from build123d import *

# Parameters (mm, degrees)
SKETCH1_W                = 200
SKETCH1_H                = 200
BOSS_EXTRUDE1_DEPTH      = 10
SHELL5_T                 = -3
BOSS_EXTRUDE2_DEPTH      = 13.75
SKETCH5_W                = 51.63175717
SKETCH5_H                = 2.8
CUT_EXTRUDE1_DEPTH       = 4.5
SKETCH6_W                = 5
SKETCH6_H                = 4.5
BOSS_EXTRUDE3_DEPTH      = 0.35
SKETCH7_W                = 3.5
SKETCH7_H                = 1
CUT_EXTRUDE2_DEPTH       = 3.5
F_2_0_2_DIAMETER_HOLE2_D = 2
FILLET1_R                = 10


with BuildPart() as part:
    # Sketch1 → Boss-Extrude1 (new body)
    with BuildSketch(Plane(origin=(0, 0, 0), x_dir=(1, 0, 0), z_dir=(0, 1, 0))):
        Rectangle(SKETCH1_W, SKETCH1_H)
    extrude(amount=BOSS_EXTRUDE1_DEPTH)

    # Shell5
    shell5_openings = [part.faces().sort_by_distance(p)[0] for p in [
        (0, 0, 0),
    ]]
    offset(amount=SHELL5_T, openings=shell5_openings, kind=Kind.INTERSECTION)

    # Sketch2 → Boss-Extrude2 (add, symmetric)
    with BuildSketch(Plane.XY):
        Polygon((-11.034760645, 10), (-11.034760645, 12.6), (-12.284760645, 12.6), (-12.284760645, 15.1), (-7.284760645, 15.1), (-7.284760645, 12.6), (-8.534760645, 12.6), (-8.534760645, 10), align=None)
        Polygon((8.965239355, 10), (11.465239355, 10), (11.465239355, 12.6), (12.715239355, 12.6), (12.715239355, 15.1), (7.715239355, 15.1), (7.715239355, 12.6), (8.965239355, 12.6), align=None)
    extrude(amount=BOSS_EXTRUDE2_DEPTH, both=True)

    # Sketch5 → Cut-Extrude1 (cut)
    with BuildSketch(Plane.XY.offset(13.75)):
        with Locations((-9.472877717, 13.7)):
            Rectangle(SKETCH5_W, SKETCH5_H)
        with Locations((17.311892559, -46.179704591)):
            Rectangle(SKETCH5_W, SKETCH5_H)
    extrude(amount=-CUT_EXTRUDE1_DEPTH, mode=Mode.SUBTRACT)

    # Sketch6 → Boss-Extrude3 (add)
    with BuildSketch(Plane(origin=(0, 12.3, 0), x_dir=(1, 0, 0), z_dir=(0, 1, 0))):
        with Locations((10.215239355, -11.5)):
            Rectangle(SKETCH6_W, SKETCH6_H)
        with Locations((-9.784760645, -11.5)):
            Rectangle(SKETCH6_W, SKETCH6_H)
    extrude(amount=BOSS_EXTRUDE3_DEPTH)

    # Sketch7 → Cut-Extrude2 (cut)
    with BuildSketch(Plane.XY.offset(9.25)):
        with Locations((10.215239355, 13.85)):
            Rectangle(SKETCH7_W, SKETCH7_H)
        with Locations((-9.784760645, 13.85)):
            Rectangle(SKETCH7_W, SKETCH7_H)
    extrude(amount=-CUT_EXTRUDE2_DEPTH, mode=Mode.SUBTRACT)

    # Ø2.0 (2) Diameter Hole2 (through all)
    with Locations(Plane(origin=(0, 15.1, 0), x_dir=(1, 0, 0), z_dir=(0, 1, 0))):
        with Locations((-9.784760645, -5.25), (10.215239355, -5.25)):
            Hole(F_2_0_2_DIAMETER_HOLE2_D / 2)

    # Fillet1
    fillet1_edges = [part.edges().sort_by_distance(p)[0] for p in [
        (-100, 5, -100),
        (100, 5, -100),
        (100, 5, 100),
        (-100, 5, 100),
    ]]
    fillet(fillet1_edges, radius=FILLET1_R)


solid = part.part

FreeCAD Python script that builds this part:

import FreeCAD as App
import Part
import Sketcher


def edges_at(feature, points):
    """Names of the edges that pass closest to the given points."""
    edges = feature.Shape.Edges
    near = lambda p: min(range(len(edges)), key=lambda i: edges[i].distToShape(Part.Vertex(*p))[0])
    return sorted({f"Edge{near(p) + 1}" for p in points})


def faces_at(feature, points):
    """Names of the faces that lie closest to the given points."""
    faces = feature.Shape.Faces
    near = lambda p: min(range(len(faces)), key=lambda i: faces[i].distToShape(Part.Vertex(*p))[0])
    return sorted({f"Face{near(p) + 1}" for p in points})


def add_polygon(sketch, points):
    """Adds a closed chain of lines whose ends are joined by coincident constraints."""
    first, n = sketch.GeometryCount, len(points)
    for a, b in zip(points, points[1:] + points[:1]):
        sketch.addGeometry(Part.LineSegment(App.Vector(*a, 0), App.Vector(*b, 0)), False)
    for i in range(n):
        sketch.addConstraint(Sketcher.Constraint("Coincident", first + i, 2, first + (i + 1) % n, 1))

doc = App.newDocument("Part")
params = doc.addObject("Spreadsheet::Sheet", "Params")
for row, (alias, value) in enumerate([
    ("sketch1_width", "200 mm"),
    ("pad1_length", "10 mm"),
    ("thickness_wall", "3 mm"),
    ("sketch2_width", "5 mm"),
    ("sketch2_width2", "2.5 mm"),
    ("sketch2_height", "2.6 mm"),
    ("pad2_length", "27.5 mm"),
    ("sketch3_height", "2.8 mm"),
    ("pocket1_length", "4.5 mm"),
    ("sketch4_width", "5 mm"),
    ("sketch4_height", "4.5 mm"),
    ("pad3_length", "0.35 mm"),
    ("sketch5_height", "1 mm"),
    ("sketch5_width", "3.5 mm"),
    ("pocket2_length", "3.5 mm"),
    ("sketch6_diameter", "2 mm"),
    ("hole_diameter", "2 mm"),
    ("fillet_radius", "10 mm"),
], start=1):
    params.set(f"A{row}", alias)
    params.set(f"B{row}", "=" + value)
    params.setAlias(f"B{row}", alias)

body = doc.addObject("PartDesign::Body", "Body")

# Sketch on XZ plane
sketch1 = doc.addObject("Sketcher::SketchObject", "Sketch")
body.addObject(sketch1)
sketch1.AttachmentSupport = (doc.XZ_Plane, [""])
sketch1.MapMode = "FlatFace"
add_polygon(sketch1, [(-100, -100), (-100, 100), (100, 100), (100, -100)])  # lines 0-3
sketch1.addConstraint([
    Sketcher.Constraint("Vertical", 0),
    Sketcher.Constraint("Horizontal", 1),
    Sketcher.Constraint("Vertical", 2),
    Sketcher.Constraint("Horizontal", 3),
    Sketcher.Constraint("Symmetric", 0, 2, 2, 2, -1, 1),
    Sketcher.Constraint("Equal", 3, 0),
    Sketcher.Constraint("DistanceX", 1, 1, 1, 2, 200.0),
])
sketch1.setExpression("Constraints[10]", "Params.sketch1_width")
pad1 = doc.addObject("PartDesign::Pad", "Pad")
body.addObject(pad1)
pad1.Profile = sketch1
pad1.setExpression("Length", "Params.pad1_length")
pad1.Reversed = True
doc.recompute()

thickness = doc.addObject("PartDesign::Thickness", "Thickness")
body.addObject(thickness)
thickness.Base = (pad1, faces_at(pad1, [(0, 0, 0)]))
thickness.setExpression("Value", "Params.thickness_wall")
thickness.Reversed = True
thickness.Join = "Intersection"

# Sketch on XY plane
sketch2 = doc.addObject("Sketcher::SketchObject", "Sketch001")
body.addObject(sketch2)
sketch2.AttachmentSupport = (doc.XY_Plane, [""])
sketch2.MapMode = "FlatFace"
add_polygon(sketch2, [(-11, 12.6), (-11, 10), (-8.5, 10), (-8.5, 12.6), (-7.3, 12.6), (-7.3, 15.1), (-12.3, 15.1), (-12.3, 12.6)])  # lines 0-7
add_polygon(sketch2, [(9, 10), (11.5, 10), (11.5, 12.6), (12.7, 12.6), (12.7, 15.1), (7.7, 15.1), (7.7, 12.6), (9, 12.6)])  # lines 8-15
sketch2.addConstraint([
    Sketcher.Constraint("Vertical", 0),
    Sketcher.Constraint("Horizontal", 1),
    Sketcher.Constraint("Vertical", 2),
    Sketcher.Constraint("Horizontal", 3),
    Sketcher.Constraint("Vertical", 4),
    Sketcher.Constraint("Horizontal", 5),
    Sketcher.Constraint("Vertical", 6),
    Sketcher.Constraint("Horizontal", 7),
    Sketcher.Constraint("Horizontal", 8),
    Sketcher.Constraint("Vertical", 9),
    Sketcher.Constraint("Horizontal", 10),
    Sketcher.Constraint("Vertical", 11),
    Sketcher.Constraint("Horizontal", 12),
    Sketcher.Constraint("Vertical", 13),
    Sketcher.Constraint("Horizontal", 14),
    Sketcher.Constraint("Vertical", 15),
    Sketcher.Constraint("Horizontal", 3, 2, 6, 2),
    Sketcher.Constraint("Horizontal", 1, 2, 8, 2),
    Sketcher.Constraint("Horizontal", 7, 2, 9, 2),
    Sketcher.Constraint("Horizontal", 5, 2, 11, 2),
    Sketcher.Constraint("Horizontal", 10, 2, 13, 2),
    Sketcher.Constraint("Equal", 3, 7),
    Sketcher.Constraint("Equal", 1, 8),
    Sketcher.Constraint("Equal", 7, 10),
    Sketcher.Constraint("Equal", 5, 12),
    Sketcher.Constraint("Equal", 8, 4),
    Sketcher.Constraint("DistanceX", 5, 2, 5, 1, 5.0),
    Sketcher.Constraint("DistanceX", 1, 1, 1, 2, 2.5),
    Sketcher.Constraint("DistanceY", 0, 2, 0, 1, 2.6),
    Sketcher.Constraint("DistanceY", -1, 1, 0, 2, 10.0),
    Sketcher.Constraint("DistanceX", 1, 2, 8, 2, 20.0),
    Sketcher.Constraint("DistanceX", 0, 2, -1, 1, 11.034761),
])
sketch2.setExpression("Constraints[42]", "Params.sketch2_width")
sketch2.setExpression("Constraints[43]", "Params.sketch2_width2")
sketch2.setExpression("Constraints[44]", "Params.sketch2_height")
pad2 = doc.addObject("PartDesign::Pad", "Pad001")
body.addObject(pad2)
pad2.Profile = sketch2
pad2.setExpression("Length", "Params.pad2_length")
pad2.Midplane = True

# Sketch on XY plane
sketch3 = doc.addObject("Sketcher::SketchObject", "Sketch002")
body.addObject(sketch3)
sketch3.AttachmentSupport = (doc.XY_Plane, [""])
sketch3.MapMode = "FlatFace"
sketch3.AttachmentOffset = App.Placement(App.Vector(0, 0, 13.75), App.Rotation())
add_polygon(sketch3, [(-35.3, 15.1), (-35.3, 12.3), (16.3, 12.3), (16.3, 15.1)])  # lines 0-3
add_polygon(sketch3, [(-8.5, -44.8), (-8.5, -47.6), (43.1, -47.6), (43.1, -44.8)])  # lines 4-7
sketch3.addConstraint([
    Sketcher.Constraint("Vertical", 0),
    Sketcher.Constraint("Horizontal", 1),
    Sketcher.Constraint("Vertical", 2),
    Sketcher.Constraint("Horizontal", 3),
    Sketcher.Constraint("Vertical", 4),
    Sketcher.Constraint("Horizontal", 5),
    Sketcher.Constraint("Vertical", 6),
    Sketcher.Constraint("Horizontal", 7),
    Sketcher.Constraint("Equal", 3, 5),
    Sketcher.Constraint("Equal", 2, 4),
    Sketcher.Constraint("DistanceY", 0, 2, 0, 1, 2.8),
    Sketcher.Constraint("DistanceY", -1, 1, 0, 2, 12.3),
    Sketcher.Constraint("DistanceX", -1, 1, 1, 2, 16.343001),
    Sketcher.Constraint("DistanceX", 1, 1, 1, 2, 51.631757),
    Sketcher.Constraint("DistanceX", -1, 1, 5, 2, 43.127771),
    Sketcher.Constraint("DistanceY", 4, 2, -1, 1, 47.579705),
])
sketch3.setExpression("Constraints[18]", "Params.sketch3_height")
pocket1 = doc.addObject("PartDesign::Pocket", "Pocket")
body.addObject(pocket1)
pocket1.Profile = sketch3
pocket1.setExpression("Length", "Params.pocket1_length")

# Sketch on XZ plane
sketch4 = doc.addObject("Sketcher::SketchObject", "Sketch003")
body.addObject(sketch4)
sketch4.AttachmentSupport = (doc.XZ_Plane, [""])
sketch4.MapMode = "FlatFace"
sketch4.AttachmentOffset = App.Placement(App.Vector(0, 0, -12.3), App.Rotation())
add_polygon(sketch4, [(7.7, 9.2), (7.7, 13.8), (12.7, 13.8), (12.7, 9.2)])  # lines 0-3
add_polygon(sketch4, [(-12.3, 9.2), (-12.3, 13.8), (-7.3, 13.8), (-7.3, 9.2)])  # lines 4-7
sketch4.addConstraint([
    Sketcher.Constraint("Vertical", 0),
    Sketcher.Constraint("Horizontal", 1),
    Sketcher.Constraint("Vertical", 2),
    Sketcher.Constraint("Horizontal", 3),
    Sketcher.Constraint("Vertical", 4),
    Sketcher.Constraint("Horizontal", 5),
    Sketcher.Constraint("Vertical", 6),
    Sketcher.Constraint("Horizontal", 7),
    Sketcher.Constraint("Horizontal", 1, 2, 4, 2),
    Sketcher.Constraint("Horizontal", 3, 2, 6, 2),
    Sketcher.Constraint("Equal", 3, 5),
    Sketcher.Constraint("DistanceX", 1, 1, 1, 2, 5.0),
    Sketcher.Constraint("DistanceY", 0, 1, 0, 2, 4.5),
    Sketcher.Constraint("DistanceX", 4, 2, 0, 2, 20.0),
    Sketcher.Constraint("DistanceY", -1, 1, 0, 2, 13.75),
    Sketcher.Constraint("DistanceX", -1, 1, 0, 2, 7.715239),
])
sketch4.setExpression("Constraints[19]", "Params.sketch4_width")
sketch4.setExpression("Constraints[20]", "Params.sketch4_height")
pad3 = doc.addObject("PartDesign::Pad", "Pad002")
body.addObject(pad3)
pad3.Profile = sketch4
pad3.setExpression("Length", "Params.pad3_length")
pad3.Reversed = True

# Sketch on XY plane
sketch5 = doc.addObject("Sketcher::SketchObject", "Sketch004")
body.addObject(sketch5)
sketch5.AttachmentSupport = (doc.XY_Plane, [""])
sketch5.MapMode = "FlatFace"
sketch5.AttachmentOffset = App.Placement(App.Vector(0, 0, 9.25), App.Rotation())
add_polygon(sketch5, [(8.5, 14.3), (8.5, 13.3), (12, 13.3), (12, 14.3)])  # lines 0-3
add_polygon(sketch5, [(-11.5, 14.3), (-11.5, 13.3), (-8, 13.3), (-8, 14.3)])  # lines 4-7
sketch5.addConstraint([
    Sketcher.Constraint("Vertical", 0),
    Sketcher.Constraint("Horizontal", 1),
    Sketcher.Constraint("Vertical", 2),
    Sketcher.Constraint("Horizontal", 3),
    Sketcher.Constraint("Vertical", 4),
    Sketcher.Constraint("Horizontal", 5),
    Sketcher.Constraint("Vertical", 6),
    Sketcher.Constraint("Horizontal", 7),
    Sketcher.Constraint("Horizontal", 1, 2, 4, 2),
    Sketcher.Constraint("Horizontal", 3, 2, 6, 2),
    Sketcher.Constraint("Equal", 3, 5),
    Sketcher.Constraint("DistanceY", 0, 2, 0, 1, 1.0),
    Sketcher.Constraint("DistanceX", 1, 1, 1, 2, 3.5),
    Sketcher.Constraint("DistanceX", 4, 2, 0, 2, 20.0),
    Sketcher.Constraint("DistanceY", -1, 1, 0, 2, 13.35),
    Sketcher.Constraint("DistanceX", -1, 1, 0, 2, 8.465239),
])
sketch5.setExpression("Constraints[19]", "Params.sketch5_height")
sketch5.setExpression("Constraints[20]", "Params.sketch5_width")
pocket2 = doc.addObject("PartDesign::Pocket", "Pocket001")
body.addObject(pocket2)
pocket2.Profile = sketch5
pocket2.setExpression("Length", "Params.pocket2_length")

# Sketch on XZ plane
sketch6 = doc.addObject("Sketcher::SketchObject", "Sketch005")
body.addObject(sketch6)
sketch6.AttachmentSupport = (doc.XZ_Plane, [""])
sketch6.MapMode = "FlatFace"
sketch6.AttachmentOffset = App.Placement(App.Vector(0, 0, -15.1), App.Rotation())
sketch6.addGeometry([
    Part.Circle(App.Vector(-9.8, 5.2, 0), App.Vector(0, 0, 1), 1),
    Part.Circle(App.Vector(10.2, 5.2, 0), App.Vector(0, 0, 1), 1),
], False)
sketch6.addConstraint([
    Sketcher.Constraint("Equal", 0, 1),
    Sketcher.Constraint("Horizontal", 0, 3, 1, 3),
    Sketcher.Constraint("Diameter", 0, 2.0),
    Sketcher.Constraint("DistanceX", 0, 3, 1, 3, 20.0),
    Sketcher.Constraint("DistanceY", -1, 1, 0, 3, 5.25),
    Sketcher.Constraint("DistanceX", 0, 3, -1, 1, 9.784761),
])
sketch6.setExpression("Constraints[2]", "Params.sketch6_diameter")
doc.recompute()
hole = doc.addObject("PartDesign::Hole", "Hole")
body.addObject(hole)
hole.Profile = sketch6
hole.ThreadType = "None"
hole.setExpression("Diameter", "Params.hole_diameter")
hole.DepthType = "ThroughAll"
hole.Reversed = True
doc.recompute()

fillet = doc.addObject("PartDesign::Fillet", "Fillet")
body.addObject(fillet)
fillet.Base = (hole, edges_at(hole, [
    (-100, 5, -100),
    (100, 5, -100),
    (100, 5, 100),
    (-100, 5, 100),
]))
fillet.setExpression("Radius", "Params.fillet_radius")

doc.recompute()
